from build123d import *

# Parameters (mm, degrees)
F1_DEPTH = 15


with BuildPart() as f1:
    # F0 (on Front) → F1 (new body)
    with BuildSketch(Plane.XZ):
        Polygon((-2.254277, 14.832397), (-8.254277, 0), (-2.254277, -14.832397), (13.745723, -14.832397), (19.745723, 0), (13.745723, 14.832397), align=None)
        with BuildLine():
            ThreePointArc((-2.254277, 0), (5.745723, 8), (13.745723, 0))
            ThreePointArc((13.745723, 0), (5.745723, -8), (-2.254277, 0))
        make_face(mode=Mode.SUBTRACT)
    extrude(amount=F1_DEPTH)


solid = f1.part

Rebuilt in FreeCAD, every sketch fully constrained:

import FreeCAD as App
import Part
import Sketcher

V = App.Vector
Q = App.Units.Quantity


def add_polygon(sketch, points):
    """Adds a closed chain of lines whose ends are joined by coincident constraints."""
    first, n = sketch.GeometryCount, len(points)
    for a, b in zip(points, points[1:] + points[:1]):
        sketch.addGeometry(Part.LineSegment(App.Vector(*a, 0), App.Vector(*b, 0)), False)
    for i in range(n):
        sketch.addConstraint(Sketcher.Constraint("Coincident", first + i, 2, first + (i + 1) % n, 1))

doc = App.newDocument("Part")
params = doc.addObject("Spreadsheet::Sheet", "Params")
for row, (alias, value) in enumerate([
    ("sketch1_diameter", "16 mm"),
    ("sketch1_width", "16 mm"),
    ("sketch1_length", "16 mm"),
    ("pad1_length", "15 mm"),
], start=1):
    params.set(f"A{row}", alias)
    params.set(f"B{row}", "=" + value)
    params.setAlias(f"B{row}", alias)

body = doc.addObject("PartDesign::Body", "Body")

# Sketch on XZ plane
sketch1 = body.newObject("Sketcher::SketchObject", "Sketch")
sketch1.AttachmentSupport = (doc.getObject("XZ_Plane"), [""])
sketch1.MapMode = "FlatFace"
add_polygon(sketch1, [(-2, 15), (-8, 0), (-2, -15), (14, -15), (20, 0), (14, 15)])  # lines 0-5
sketch1.addGeometry(Part.Circle(V(6, 0, 0), V(0, 0, 1), 8), False)  # 6
sketch1.addConstraint([
    Sketcher.Constraint("Horizontal", 2),
    Sketcher.Constraint("Horizontal", 5),
    Sketcher.Constraint("Symmetric", 2, 2, 4, 2, -1),
    Sketcher.Constraint("PointOnObject", 6, 3, -1),
    Sketcher.Constraint("PointOnObject", 0, 2, -1),
    Sketcher.Constraint("PointOnObject", 3, 2, -1),
    Sketcher.Constraint("Parallel", 0, 3),
    Sketcher.Constraint("Parallel", 1, 4),
    Sketcher.Constraint("Diameter", 6, Q("16 mm")),
    Sketcher.Constraint("DistanceX", 2, 1, 2, 2, Q("16 mm")),
    Sketcher.Constraint("Distance", 0, Q("16 mm")),
    Sketcher.Constraint("DistanceX", 0, 2, 6, 3, Q("14 mm")),
    Sketcher.Constraint("DistanceX", 0, 2, 1, 2, Q("6 mm")),
    Sketcher.Constraint("DistanceX", -1, 1, 6, 3, Q("5.745723 mm")),
])
sketch1.setExpression("Constraints[14]", "Params.sketch1_diameter")
sketch1.setExpression("Constraints[15]", "Params.sketch1_width")
sketch1.setExpression("Constraints[16]", "Params.sketch1_length")
pad1 = body.newObject("PartDesign::Pad", "Pad")
pad1.Profile = sketch1
pad1.setExpression("Length", "Params.pad1_length")

doc.recompute()
